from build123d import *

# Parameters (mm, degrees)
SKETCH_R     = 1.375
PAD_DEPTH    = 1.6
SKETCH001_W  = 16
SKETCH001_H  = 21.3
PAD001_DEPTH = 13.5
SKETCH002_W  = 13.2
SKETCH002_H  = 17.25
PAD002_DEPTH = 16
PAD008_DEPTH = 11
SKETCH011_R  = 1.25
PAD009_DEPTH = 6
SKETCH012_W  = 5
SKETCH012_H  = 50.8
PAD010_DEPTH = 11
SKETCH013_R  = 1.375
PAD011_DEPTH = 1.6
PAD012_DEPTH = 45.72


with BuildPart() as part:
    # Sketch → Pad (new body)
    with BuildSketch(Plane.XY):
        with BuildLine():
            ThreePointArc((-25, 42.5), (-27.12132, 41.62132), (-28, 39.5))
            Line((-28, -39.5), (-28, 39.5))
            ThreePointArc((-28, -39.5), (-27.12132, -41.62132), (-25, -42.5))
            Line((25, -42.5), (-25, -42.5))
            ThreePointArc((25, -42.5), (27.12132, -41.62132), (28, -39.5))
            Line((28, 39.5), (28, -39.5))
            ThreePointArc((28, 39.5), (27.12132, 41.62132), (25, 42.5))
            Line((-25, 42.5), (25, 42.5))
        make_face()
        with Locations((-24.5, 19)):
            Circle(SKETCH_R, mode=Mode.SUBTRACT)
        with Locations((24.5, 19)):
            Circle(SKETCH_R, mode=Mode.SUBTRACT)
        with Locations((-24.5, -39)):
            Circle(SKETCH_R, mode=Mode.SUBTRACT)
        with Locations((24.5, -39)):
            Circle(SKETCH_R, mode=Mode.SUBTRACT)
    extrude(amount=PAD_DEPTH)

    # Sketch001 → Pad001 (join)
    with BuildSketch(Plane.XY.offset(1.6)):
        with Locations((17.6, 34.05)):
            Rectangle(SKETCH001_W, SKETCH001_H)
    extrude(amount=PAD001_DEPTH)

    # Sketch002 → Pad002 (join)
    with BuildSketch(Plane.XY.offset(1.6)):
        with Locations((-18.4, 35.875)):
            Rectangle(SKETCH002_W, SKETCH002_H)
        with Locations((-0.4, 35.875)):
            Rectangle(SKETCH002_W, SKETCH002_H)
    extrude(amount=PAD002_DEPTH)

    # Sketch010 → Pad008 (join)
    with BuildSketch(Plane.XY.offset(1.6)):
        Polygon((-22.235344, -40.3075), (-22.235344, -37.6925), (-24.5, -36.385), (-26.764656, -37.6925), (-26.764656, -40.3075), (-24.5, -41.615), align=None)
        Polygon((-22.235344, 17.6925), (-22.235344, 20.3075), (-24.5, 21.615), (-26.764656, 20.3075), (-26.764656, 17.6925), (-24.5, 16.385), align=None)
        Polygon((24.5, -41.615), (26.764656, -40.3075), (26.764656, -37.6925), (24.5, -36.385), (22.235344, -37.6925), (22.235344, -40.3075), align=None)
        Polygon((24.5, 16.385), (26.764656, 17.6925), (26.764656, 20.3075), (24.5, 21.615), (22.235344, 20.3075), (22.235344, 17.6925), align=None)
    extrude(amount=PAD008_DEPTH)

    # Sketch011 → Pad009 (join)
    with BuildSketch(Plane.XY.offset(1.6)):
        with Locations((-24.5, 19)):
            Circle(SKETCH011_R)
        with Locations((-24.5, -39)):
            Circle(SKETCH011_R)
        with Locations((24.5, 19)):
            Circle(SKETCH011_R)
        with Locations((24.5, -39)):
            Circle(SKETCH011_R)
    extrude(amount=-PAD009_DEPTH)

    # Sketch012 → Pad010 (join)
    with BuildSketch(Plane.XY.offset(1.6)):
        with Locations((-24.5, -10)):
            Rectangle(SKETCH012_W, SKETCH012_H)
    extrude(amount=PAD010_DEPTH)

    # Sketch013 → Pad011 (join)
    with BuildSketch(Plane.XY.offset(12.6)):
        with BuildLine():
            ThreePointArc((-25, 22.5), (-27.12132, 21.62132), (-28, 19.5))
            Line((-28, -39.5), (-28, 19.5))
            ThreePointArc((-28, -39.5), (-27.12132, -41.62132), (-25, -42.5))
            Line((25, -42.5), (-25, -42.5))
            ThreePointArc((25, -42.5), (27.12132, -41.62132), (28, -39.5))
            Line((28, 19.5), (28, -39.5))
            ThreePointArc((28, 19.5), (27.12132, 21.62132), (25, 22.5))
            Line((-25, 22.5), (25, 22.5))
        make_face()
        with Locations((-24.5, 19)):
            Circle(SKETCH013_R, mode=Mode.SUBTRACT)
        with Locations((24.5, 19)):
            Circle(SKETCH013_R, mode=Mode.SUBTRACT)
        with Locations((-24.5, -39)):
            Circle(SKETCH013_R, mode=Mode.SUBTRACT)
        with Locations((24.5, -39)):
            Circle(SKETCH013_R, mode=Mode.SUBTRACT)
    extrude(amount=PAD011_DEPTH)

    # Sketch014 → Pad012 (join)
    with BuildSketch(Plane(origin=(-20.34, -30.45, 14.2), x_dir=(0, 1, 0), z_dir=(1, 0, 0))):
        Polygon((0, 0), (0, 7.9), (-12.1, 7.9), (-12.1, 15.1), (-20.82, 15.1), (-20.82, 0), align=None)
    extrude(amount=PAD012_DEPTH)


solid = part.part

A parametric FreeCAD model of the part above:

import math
import FreeCAD as App
import Part
import Sketcher
Q = App.Units.Quantity


def add_polygon(sketch, points):
    """Adds a closed chain of lines whose ends are joined by coincident constraints."""
    first, n = sketch.GeometryCount, len(points)
    for a, b in zip(points, points[1:] + points[:1]):
        sketch.addGeometry(Part.LineSegment(App.Vector(*a, 0), App.Vector(*b, 0)), False)
    for i in range(n):
        sketch.addConstraint(Sketcher.Constraint("Coincident", first + i, 2, first + (i + 1) % n, 1))

doc = App.newDocument("Part")
body = doc.addObject("PartDesign::Body", "Body")

# Sketch on XY plane
sketch1 = body.newObject("Sketcher::SketchObject", "Sketch")
sketch1.AttachmentSupport = (doc.getObject("XY_Plane"), [""])
sketch1.MapMode = "FlatFace"
sketch1.addGeometry([
    Part.ArcOfCircle(Part.Circle(App.Vector(-25, 39.5, 0), App.Vector(0, 0, 1), 3), math.radians(90), math.radians(180)),  # 0
    Part.LineSegment(App.Vector(-28, 39.5, 0), App.Vector(-28, -39.5, 0)),  # 1
    Part.ArcOfCircle(Part.Circle(App.Vector(-25, -39.5, 0), App.Vector(0, 0, 1), 3), math.radians(-180), math.radians(-90)),  # 2
    Part.LineSegment(App.Vector(-25, -42.5, 0), App.Vector(25, -42.5, 0)),  # 3
    Part.ArcOfCircle(Part.Circle(App.Vector(25, -39.5, 0), App.Vector(0, 0, 1), 3), math.radians(-90), math.radians(0)),  # 4
    Part.LineSegment(App.Vector(28, -39.5, 0), App.Vector(28, 39.5, 0)),  # 5
    Part.ArcOfCircle(Part.Circle(App.Vector(25, 39.5, 0), App.Vector(0, 0, 1), 3), math.radians(0), math.radians(90)),  # 6
    Part.LineSegment(App.Vector(25, 42.5, 0), App.Vector(-25, 42.5, 0)),  # 7
    Part.Circle(App.Vector(-24.5, -39, 0), App.Vector(0, 0, 1), 1.4),  # 8
    Part.Circle(App.Vector(24.5, -39, 0), App.Vector(0, 0, 1), 1.4),  # 9
    Part.Circle(App.Vector(-24.5, 19, 0), App.Vector(0, 0, 1), 1.4),  # 10
    Part.Circle(App.Vector(24.5, 19, 0), App.Vector(0, 0, 1), 1.4),  # 11
], False)
sketch1.addConstraint([
    Sketcher.Constraint("Tangent", 0, 2, 1, 1),
    Sketcher.Constraint("Tangent", 1, 2, 2, 1),
    Sketcher.Constraint("Tangent", 2, 2, 3, 1),
    Sketcher.Constraint("Tangent", 3, 2, 4, 1),
    Sketcher.Constraint("Tangent", 4, 2, 5, 1),
    Sketcher.Constraint("Tangent", 5, 2, 6, 1),
    Sketcher.Constraint("Tangent", 6, 2, 7, 1),
    Sketcher.Constraint("Tangent", 7, 2, 0, 1),
    Sketcher.Constraint("Vertical", 1),
    Sketcher.Constraint("Horizontal", 3),
    Sketcher.Constraint("Vertical", 5),
    Sketcher.Constraint("Horizontal", 7),
    Sketcher.Constraint("Equal", 0, 2),
    Sketcher.Constraint("Equal", 2, 4),
    Sketcher.Constraint("Equal", 4, 6),
    Sketcher.Constraint("Equal", 8, 9),
    Sketcher.Constraint("Equal", 9, 10),
    Sketcher.Constraint("Equal", 10, 11),
    Sketcher.Constraint("Symmetric", 0, 3, 4, 3, -1, 1),
    Sketcher.Constraint("Symmetric", 8, 3, 9, 3, -2),
    Sketcher.Constraint("Symmetric", 10, 3, 11, 3, -2),
    Sketcher.Constraint("Vertical", 8, 3, 10, 3),
    Sketcher.Constraint("Radius", 0, Q("3.000001 mm")),
    Sketcher.Constraint("Diameter", 8, Q("2.75 mm")),
    Sketcher.Constraint("DistanceX", 3, 1, 3, 2, Q("50 mm")),
    Sketcher.Constraint("DistanceY", 1, 2, 1, 1, Q("79 mm")),
    Sketcher.Constraint("DistanceY", 8, 3, -1, 1, Q("39 mm")),
    Sketcher.Constraint("DistanceY", -1, 1, 10, 3, Q("19 mm")),
    Sketcher.Constraint("DistanceX", 8, 3, 9, 3, Q("49 mm")),
])
pad1 = body.newObject("PartDesign::Pad", "Pad")
pad1.Profile = sketch1
pad1.Length = 1.6

# Sketch on XY plane
sketch2 = body.newObject("Sketcher::SketchObject", "Sketch001")
sketch2.AttachmentSupport = (doc.getObject("XY_Plane"), [""])
sketch2.MapMode = "FlatFace"
sketch2.AttachmentOffset = App.Placement(App.Vector(0, 0, 1.6), App.Rotation())
add_polygon(sketch2, [(10, 45), (10, 23), (26, 23), (26, 45)])  # lines 0-3
sketch2.addConstraint([
    Sketcher.Constraint("Vertical", 0),
    Sketcher.Constraint("Horizontal", 1),
    Sketcher.Constraint("Vertical", 2),
    Sketcher.Constraint("Horizontal", 3),
    Sketcher.Constraint("DistanceX", 1, 1, 1, 2, Q("16 mm")),
    Sketcher.Constraint("DistanceY", 0, 2, 0, 1, Q("21.3 mm")),
    Sketcher.Constraint("DistanceX", -1, 1, 0, 2, Q("9.6 mm")),
    Sketcher.Constraint("DistanceY", -1, 1, 0, 2, Q("23.4 mm")),
])
pad2 = body.newObject("PartDesign::Pad", "Pad001")
pad2.Profile = sketch2
pad2.Length = 13.5

# Sketch on XY plane
sketch3 = body.newObject("Sketcher::SketchObject", "Sketch002")
sketch3.AttachmentSupport = (doc.getObject("XY_Plane"), [""])
sketch3.MapMode = "FlatFace"
sketch3.AttachmentOffset = App.Placement(App.Vector(0, 0, 1.6), App.Rotation())
add_polygon(sketch3, [(-25, 44), (-25, 27), (-12, 27), (-12, 44)])  # lines 0-3
add_polygon(sketch3, [(-7, 44), (-7, 27), (6, 27), (6, 44)])  # lines 4-7
sketch3.addConstraint([
    Sketcher.Constraint("Vertical", 0),
    Sketcher.Constraint("Horizontal", 1),
    Sketcher.Constraint("Vertical", 2),
    Sketcher.Constraint("Horizontal", 3),
    Sketcher.Constraint("Vertical", 4),
    Sketcher.Constraint("Horizontal", 5),
    Sketcher.Constraint("Vertical", 6),
    Sketcher.Constraint("Horizontal", 7),
    Sketcher.Constraint("Horizontal", 1, 2, 4, 2),
    Sketcher.Constraint("Horizontal", 3, 2, 6, 2),
    Sketcher.Constraint("Equal", 3, 5),
    Sketcher.Constraint("DistanceX", 1, 1, 1, 2, Q("13.2 mm")),
    Sketcher.Constraint("DistanceX", 0, 2, -1, 1, Q("25 mm")),
    Sketcher.Constraint("DistanceX", 4, 2, -1, 1, Q("7 mm")),
    Sketcher.Constraint("DistanceY", 0, 2, 0, 1, Q("17.25 mm")),
    Sketcher.Constraint("DistanceY", -1, 1, 2, 2, Q("44.5 mm")),
])
pad3 = body.newObject("PartDesign::Pad", "Pad002")
pad3.Profile = sketch3
pad3.Length = 16

# Sketch on XY plane
sketch4 = body.newObject("Sketcher::SketchObject", "Sketch003")
sketch4.AttachmentSupport = (doc.getObject("XY_Plane"), [""])
sketch4.MapMode = "FlatFace"
sketch4.AttachmentOffset = App.Placement(App.Vector(0, 0, 1.6), App.Rotation())
add_polygon(sketch4, [(-22.2, -40.3), (-22.2, -37.7), (-24.5, -36.4), (-26.8, -37.7), (-26.8, -40.3), (-24.5, -41.6)])  # lines 0-5
add_polygon(sketch4, [(-22.2, 17.7), (-22.2, 20.3), (-24.5, 21.6), (-26.8, 20.3), (-26.8, 17.7), (-24.5, 16.4)])  # lines 6-11
add_polygon(sketch4, [(24.5, -41.6), (26.8, -40.3), (26.8, -37.7), (24.5, -36.4), (22.2, -37.7), (22.2, -40.3)])  # lines 12-17
add_polygon(sketch4, [(24.5, 16.4), (26.8, 17.7), (26.8, 20.3), (24.5, 21.6), (22.2, 20.3), (22.2, 17.7)])  # lines 18-23
sketch4.addConstraint([
    Sketcher.Constraint("Vertical", 0),
    Sketcher.Constraint("Vertical", 3),
    Sketcher.Constraint("Vertical", 6),
    Sketcher.Constraint("Vertical", 9),
    Sketcher.Constraint("Vertical", 13),
    Sketcher.Constraint("Vertical", 16),
    Sketcher.Constraint("Vertical", 19),
    Sketcher.Constraint("Vertical", 22),
    Sketcher.Constraint("Symmetric", 3, 2, 12, 2, -2),
    Sketcher.Constraint("Symmetric", 1, 2, 14, 2, -2),
    Sketcher.Constraint("Symmetric", 0, 2, 15, 2, -2),
    Sketcher.Constraint("Symmetric", 4, 2, 17, 2, -2),
    Sketcher.Constraint("Symmetric", 9, 2, 18, 2, -2),
    Sketcher.Constraint("Symmetric", 7, 2, 20, 2, -2),
    Sketcher.Constraint("Symmetric", 6, 2, 21, 2, -2),
    Sketcher.Constraint("Symmetric", 10, 2, 23, 2, -2),
    Sketcher.Constraint("Parallel", 1, 4),
    Sketcher.Constraint("Parallel", 2, 5),
    Sketcher.Constraint("Parallel", 4, 7),
    Sketcher.Constraint("Parallel", 5, 8),
    Sketcher.Constraint("Parallel", 7, 10),
    Sketcher.Constraint("Parallel", 8, 11),
    Sketcher.Constraint("Parallel", 11, 12),
    Sketcher.Constraint("Parallel", 10, 14),
    Sketcher.Constraint("Parallel", 14, 17),
    Sketcher.Constraint("Parallel", 17, 20),
    Sketcher.Constraint("Parallel", 20, 23),
    Sketcher.Constraint("Horizontal", 0, 2, 2, 2),
    Sketcher.Constraint("Horizontal", 3, 2, 5, 2),
    Sketcher.Constraint("Horizontal", 6, 2, 8, 2),
    Sketcher.Constraint("Horizontal", 9, 2, 11, 2),
    Sketcher.Constraint("Vertical", 5, 2, 6, 2),
    Sketcher.Constraint("Vertical", 4, 2, 7, 2),
    Sketcher.Constraint("Equal", 3, 6),
    Sketcher.Constraint("Angle", 1, Q("149.999995 deg")),
    Sketcher.Constraint("DistanceY", 0, 2, 6, 2, Q("58 mm")),
    Sketcher.Constraint("DistanceX", 5, 2, 12, 2, Q("49 mm")),
    Sketcher.Constraint("DistanceY", 0, 1, 0, 2, Q("2.615 mm")),
    Sketcher.Constraint("DistanceY", 4, 2, 1, 2, Q("5.23 mm")),
    Sketcher.Constraint("DistanceY", 1, 2, -1, 1, Q("36.385 mm")),
])
pad4 = body.newObject("PartDesign::Pad", "Pad003")
pad4.Profile = sketch4
pad4.Length = 11

# Sketch on XY plane
sketch5 = body.newObject("Sketcher::SketchObject", "Sketch004")
sketch5.AttachmentSupport = (doc.getObject("XY_Plane"), [""])
sketch5.MapMode = "FlatFace"
sketch5.AttachmentOffset = App.Placement(App.Vector(0, 0, 1.6), App.Rotation())
sketch5.addGeometry([
    Part.Circle(App.Vector(-24.5, 19, 0), App.Vector(0, 0, 1), 1.2),
    Part.Circle(App.Vector(-24.5, -39, 0), App.Vector(0, 0, 1), 1.2),
    Part.Circle(App.Vector(24.5, 19, 0), App.Vector(0, 0, 1), 1.2),
    Part.Circle(App.Vector(24.5, -39, 0), App.Vector(0, 0, 1), 1.2),
], False)
sketch5.addConstraint([
    Sketcher.Constraint("Equal", 0, 1),
    Sketcher.Constraint("Equal", 1, 2),
    Sketcher.Constraint("Equal", 2, 3),
    Sketcher.Constraint("Symmetric", 0, 3, 2, 3, -2),
    Sketcher.Constraint("Symmetric", 1, 3, 3, 3, -2),
    Sketcher.Constraint("Vertical", 0, 3, 1, 3),
    Sketcher.Constraint("Diameter", 0, Q("2.5 mm")),
    Sketcher.Constraint("DistanceY", -1, 1, 0, 3, Q("19 mm")),
    Sketcher.Constraint("DistanceY", 1, 3, -1, 1, Q("39 mm")),
    Sketcher.Constraint("DistanceX", 0, 3, 2, 3, Q("49 mm")),
])
pad5 = body.newObject("PartDesign::Pad", "Pad004")
pad5.Profile = sketch5
pad5.Length = 6
pad5.Reversed = True

# Sketch on XY plane
sketch6 = body.newObject("Sketcher::SketchObject", "Sketch005")
sketch6.AttachmentSupport = (doc.getObject("XY_Plane"), [""])
sketch6.MapMode = "FlatFace"
sketch6.AttachmentOffset = App.Placement(App.Vector(0, 0, 1.6), App.Rotation())
add_polygon(sketch6, [(-27, 15), (-27, -35), (-22, -35), (-22, 15)])  # lines 0-3
sketch6.addConstraint([
    Sketcher.Constraint("Vertical", 0),
    Sketcher.Constraint("Horizontal", 1),
    Sketcher.Constraint("Vertical", 2),
    Sketcher.Constraint("Horizontal", 3),
    Sketcher.Constraint("DistanceX", 1, 1, 1, 2, Q("5 mm")),
    Sketcher.Constraint("DistanceY", 0, 2, 0, 1, Q("50.8 mm")),
    Sketcher.Constraint("DistanceX", 0, 2, -1, 1, Q("27 mm")),
    Sketcher.Constraint("DistanceY", 0, 2, -1, 1, Q("35.4 mm")),
])
pad6 = body.newObject("PartDesign::Pad", "Pad005")
pad6.Profile = sketch6
pad6.Length = 11

# Sketch on XY plane
sketch7 = body.newObject("Sketcher::SketchObject", "Sketch006")
sketch7.AttachmentSupport = (doc.getObject("XY_Plane"), [""])
sketch7.MapMode = "FlatFace"
sketch7.AttachmentOffset = App.Placement(App.Vector(0, 0, 12.6), App.Rotation())
sketch7.addGeometry([
    Part.ArcOfCircle(Part.Circle(App.Vector(-25, 19.5, 0), App.Vector(0, 0, 1), 3), math.radians(90), math.radians(180)),  # 0
    Part.LineSegment(App.Vector(-28, 19.5, 0), App.Vector(-28, -39.5, 0)),  # 1
    Part.ArcOfCircle(Part.Circle(App.Vector(-25, -39.5, 0), App.Vector(0, 0, 1), 3), math.radians(-180), math.radians(-90)),  # 2
    Part.LineSegment(App.Vector(-25, -42.5, 0), App.Vector(25, -42.5, 0)),  # 3
    Part.ArcOfCircle(Part.Circle(App.Vector(25, -39.5, 0), App.Vector(0, 0, 1), 3), math.radians(-90), math.radians(0)),  # 4
    Part.LineSegment(App.Vector(28, -39.5, 0), App.Vector(28, 19.5, 0)),  # 5
    Part.ArcOfCircle(Part.Circle(App.Vector(25, 19.5, 0), App.Vector(0, 0, 1), 3), math.radians(0), math.radians(90)),  # 6
    Part.LineSegment(App.Vector(25, 22.5, 0), App.Vector(-25, 22.5, 0)),  # 7
    Part.Circle(App.Vector(-24.5, -39, 0), App.Vector(0, 0, 1), 1.4),  # 8
    Part.Circle(App.Vector(24.5, -39, 0), App.Vector(0, 0, 1), 1.4),  # 9
    Part.Circle(App.Vector(-24.5, 19, 0), App.Vector(0, 0, 1), 1.4),  # 10
    Part.Circle(App.Vector(24.5, 19, 0), App.Vector(0, 0, 1), 1.4),  # 11
], False)
sketch7.addConstraint([
    Sketcher.Constraint("Tangent", 0, 2, 1, 1),
    Sketcher.Constraint("Tangent", 1, 2, 2, 1),
    Sketcher.Constraint("Tangent", 2, 2, 3, 1),
    Sketcher.Constraint("Tangent", 3, 2, 4, 1),
    Sketcher.Constraint("Tangent", 4, 2, 5, 1),
    Sketcher.Constraint("Tangent", 5, 2, 6, 1),
    Sketcher.Constraint("Tangent", 6, 2, 7, 1),
    Sketcher.Constraint("Tangent", 7, 2, 0, 1),
    Sketcher.Constraint("Vertical", 1),
    Sketcher.Constraint("Horizontal", 3),
    Sketcher.Constraint("Vertical", 5),
    Sketcher.Constraint("Horizontal", 7),
    Sketcher.Constraint("Equal", 0, 2),
    Sketcher.Constraint("Equal", 2, 4),
    Sketcher.Constraint("Equal", 4, 6),
    Sketcher.Constraint("Equal", 8, 9),
    Sketcher.Constraint("Equal", 9, 10),
    Sketcher.Constraint("Equal", 10, 11),
    Sketcher.Constraint("Symmetric", 8, 3, 9, 3, -2),
    Sketcher.Constraint("Symmetric", 10, 3, 11, 3, -2),
    Sketcher.Constraint("Vertical", 8, 3, 10, 3),
    Sketcher.Constraint("Radius", 0, Q("3.000001 mm")),
    Sketcher.Constraint("Diameter", 8, Q("2.75 mm")),
    Sketcher.Constraint("DistanceX", 3, 1, 3, 2, Q("50 mm")),
    Sketcher.Constraint("DistanceY", 1, 2, 1, 1, Q("59 mm")),
    Sketcher.Constraint("DistanceX", 0, 3, -1, 1, Q("24.999999 mm")),
    Sketcher.Constraint("DistanceY", 8, 3, -1, 1, Q("39 mm")),
    Sketcher.Constraint("DistanceY", -1, 1, 10, 3, Q("19 mm")),
    Sketcher.Constraint("DistanceX", 8, 3, 9, 3, Q("49 mm")),
    Sketcher.Constraint("DistanceY", -1, 1, 0, 3, Q("19.499999 mm")),
])
pad7 = body.newObject("PartDesign::Pad", "Pad006")
pad7.Profile = sketch7
pad7.Length = 1.6

# Sketch on YZ plane
sketch8 = body.newObject("Sketcher::SketchObject", "Sketch007")
sketch8.AttachmentSupport = (doc.getObject("YZ_Plane"), [""])
sketch8.MapMode = "FlatFace"
sketch8.AttachmentOffset = App.Placement(App.Vector(0, 0, -20.34), App.Rotation())
add_polygon(sketch8, [(-30, 14), (-30, 22), (-43, 22), (-43, 29), (-51, 29), (-51, 14)])  # lines 0-5
sketch8.addConstraint([
    Sketcher.Constraint("Vertical", 0),
    Sketcher.Constraint("Horizontal", 1),
    Sketcher.Constraint("Vertical", 2),
    Sketcher.Constraint("Horizontal", 3),
    Sketcher.Constraint("Vertical", 4),
    Sketcher.Constraint("Horizontal", 5),
    Sketcher.Constraint("DistanceX", 1, 2, 1, 1, Q("12.1 mm")),
    Sketcher.Constraint("DistanceY", 0, 1, 0, 2, Q("7.9 mm")),
    Sketcher.Constraint("DistanceY", 2, 1, 2, 2, Q("7.2 mm")),
    Sketcher.Constraint("DistanceX", 3, 2, 3, 1, Q("8.72 mm")),
    Sketcher.Constraint("DistanceY", -1, 1, 0, 2, Q("22.1 mm")),
    Sketcher.Constraint("DistanceX", 0, 2, -1, 1, Q("30.45 mm")),
])
pad8 = body.newObject("PartDesign::Pad", "Pad007")
pad8.Profile = sketch8
pad8.Length = 45.72

doc.recompute()
